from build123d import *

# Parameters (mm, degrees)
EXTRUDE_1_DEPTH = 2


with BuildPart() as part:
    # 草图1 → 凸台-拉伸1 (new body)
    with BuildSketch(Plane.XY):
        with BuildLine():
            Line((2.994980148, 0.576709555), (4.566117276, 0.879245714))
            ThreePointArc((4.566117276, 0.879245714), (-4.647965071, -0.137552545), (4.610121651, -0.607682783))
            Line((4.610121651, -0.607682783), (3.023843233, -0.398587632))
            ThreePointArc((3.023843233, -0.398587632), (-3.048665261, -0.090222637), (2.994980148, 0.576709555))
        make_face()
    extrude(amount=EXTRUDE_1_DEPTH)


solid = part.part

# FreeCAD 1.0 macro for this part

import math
import FreeCAD as App
import Part
import Sketcher
Q = App.Units.Quantity

doc = App.newDocument("Part")
params = doc.addObject("Spreadsheet::Sheet", "Params")
for row, (alias, value) in enumerate([
    ("sketch1_radius", "4.65 mm"),
    ("sketch1_radius2", "3.05 mm"),
    ("pad1_length", "2 mm"),
], start=1):
    params.set(f"A{row}", alias)
    params.set(f"B{row}", "=" + value)
    params.setAlias(f"B{row}", alias)

body = doc.addObject("PartDesign::Body", "Body")

sketch1 = body.newObject("Sketcher::SketchObject", "Sketch")
sketch1.AttachmentSupport = (doc.getObject("XY_Plane"), [""])
sketch1.MapMode = "FlatFace"
sketch1.addGeometry(Part.LineSegment(App.Vector(3, 0.6, 0), App.Vector(4.6, 0.9, 0)), False)
sketch1.addGeometry(Part.ArcOfCircle(Part.Circle(App.Vector(0, 0, 0), App.Vector(0, 0, 1), 4.7), math.radians(11), math.radians(352)), False)
sketch1.addGeometry(Part.LineSegment(App.Vector(4.6, -0.6, 0), App.Vector(3, -0.4, 0)), False)
sketch1.addGeometry(Part.ArcOfCircle(Part.Circle(App.Vector(0, 0, 0), App.Vector(0, 0, 1), 3), math.radians(11), math.radians(352)), False)
sketch1.addConstraint(Sketcher.Constraint("Coincident", 0, 2, 1, 1))
sketch1.addConstraint(Sketcher.Constraint("Coincident", 1, 2, 2, 1))
sketch1.addConstraint(Sketcher.Constraint("Coincident", 2, 2, 3, 2))
sketch1.addConstraint(Sketcher.Constraint("Coincident", 3, 1, 0, 1))
sketch1.addConstraint(Sketcher.Constraint("Coincident", 1, 3, -1, 1))
sketch1.addConstraint(Sketcher.Constraint("Coincident", 3, 3, -1, 1))
sketch1.addConstraint(Sketcher.Constraint("Radius", 1, Q("4.65 mm")))
sketch1.addConstraint(Sketcher.Constraint("Radius", 3, Q("3.05 mm")))
sketch1.addConstraint(Sketcher.Constraint("DistanceX", -1, 1, 1, 2, Q("4.610122 mm")))
sketch1.addConstraint(Sketcher.Constraint("DistanceX", -1, 1, 3, 1, Q("2.99498 mm")))
sketch1.addConstraint(Sketcher.Constraint("DistanceY", 1, 2, 0, 2, Q("1.486928 mm")))
sketch1.addConstraint(Sketcher.Constraint("DistanceX", 2, 2, 1, 2, Q("1.586278 mm")))
sketch1.setExpression("Constraints[6]", "Params.sketch1_radius")
sketch1.setExpression("Constraints[7]", "Params.sketch1_radius2")
pad1 = body.newObject("PartDesign::Pad", "Pad")
pad1.Profile = sketch1
pad1.setExpression("Length", "Params.pad1_length")

doc.recompute()
